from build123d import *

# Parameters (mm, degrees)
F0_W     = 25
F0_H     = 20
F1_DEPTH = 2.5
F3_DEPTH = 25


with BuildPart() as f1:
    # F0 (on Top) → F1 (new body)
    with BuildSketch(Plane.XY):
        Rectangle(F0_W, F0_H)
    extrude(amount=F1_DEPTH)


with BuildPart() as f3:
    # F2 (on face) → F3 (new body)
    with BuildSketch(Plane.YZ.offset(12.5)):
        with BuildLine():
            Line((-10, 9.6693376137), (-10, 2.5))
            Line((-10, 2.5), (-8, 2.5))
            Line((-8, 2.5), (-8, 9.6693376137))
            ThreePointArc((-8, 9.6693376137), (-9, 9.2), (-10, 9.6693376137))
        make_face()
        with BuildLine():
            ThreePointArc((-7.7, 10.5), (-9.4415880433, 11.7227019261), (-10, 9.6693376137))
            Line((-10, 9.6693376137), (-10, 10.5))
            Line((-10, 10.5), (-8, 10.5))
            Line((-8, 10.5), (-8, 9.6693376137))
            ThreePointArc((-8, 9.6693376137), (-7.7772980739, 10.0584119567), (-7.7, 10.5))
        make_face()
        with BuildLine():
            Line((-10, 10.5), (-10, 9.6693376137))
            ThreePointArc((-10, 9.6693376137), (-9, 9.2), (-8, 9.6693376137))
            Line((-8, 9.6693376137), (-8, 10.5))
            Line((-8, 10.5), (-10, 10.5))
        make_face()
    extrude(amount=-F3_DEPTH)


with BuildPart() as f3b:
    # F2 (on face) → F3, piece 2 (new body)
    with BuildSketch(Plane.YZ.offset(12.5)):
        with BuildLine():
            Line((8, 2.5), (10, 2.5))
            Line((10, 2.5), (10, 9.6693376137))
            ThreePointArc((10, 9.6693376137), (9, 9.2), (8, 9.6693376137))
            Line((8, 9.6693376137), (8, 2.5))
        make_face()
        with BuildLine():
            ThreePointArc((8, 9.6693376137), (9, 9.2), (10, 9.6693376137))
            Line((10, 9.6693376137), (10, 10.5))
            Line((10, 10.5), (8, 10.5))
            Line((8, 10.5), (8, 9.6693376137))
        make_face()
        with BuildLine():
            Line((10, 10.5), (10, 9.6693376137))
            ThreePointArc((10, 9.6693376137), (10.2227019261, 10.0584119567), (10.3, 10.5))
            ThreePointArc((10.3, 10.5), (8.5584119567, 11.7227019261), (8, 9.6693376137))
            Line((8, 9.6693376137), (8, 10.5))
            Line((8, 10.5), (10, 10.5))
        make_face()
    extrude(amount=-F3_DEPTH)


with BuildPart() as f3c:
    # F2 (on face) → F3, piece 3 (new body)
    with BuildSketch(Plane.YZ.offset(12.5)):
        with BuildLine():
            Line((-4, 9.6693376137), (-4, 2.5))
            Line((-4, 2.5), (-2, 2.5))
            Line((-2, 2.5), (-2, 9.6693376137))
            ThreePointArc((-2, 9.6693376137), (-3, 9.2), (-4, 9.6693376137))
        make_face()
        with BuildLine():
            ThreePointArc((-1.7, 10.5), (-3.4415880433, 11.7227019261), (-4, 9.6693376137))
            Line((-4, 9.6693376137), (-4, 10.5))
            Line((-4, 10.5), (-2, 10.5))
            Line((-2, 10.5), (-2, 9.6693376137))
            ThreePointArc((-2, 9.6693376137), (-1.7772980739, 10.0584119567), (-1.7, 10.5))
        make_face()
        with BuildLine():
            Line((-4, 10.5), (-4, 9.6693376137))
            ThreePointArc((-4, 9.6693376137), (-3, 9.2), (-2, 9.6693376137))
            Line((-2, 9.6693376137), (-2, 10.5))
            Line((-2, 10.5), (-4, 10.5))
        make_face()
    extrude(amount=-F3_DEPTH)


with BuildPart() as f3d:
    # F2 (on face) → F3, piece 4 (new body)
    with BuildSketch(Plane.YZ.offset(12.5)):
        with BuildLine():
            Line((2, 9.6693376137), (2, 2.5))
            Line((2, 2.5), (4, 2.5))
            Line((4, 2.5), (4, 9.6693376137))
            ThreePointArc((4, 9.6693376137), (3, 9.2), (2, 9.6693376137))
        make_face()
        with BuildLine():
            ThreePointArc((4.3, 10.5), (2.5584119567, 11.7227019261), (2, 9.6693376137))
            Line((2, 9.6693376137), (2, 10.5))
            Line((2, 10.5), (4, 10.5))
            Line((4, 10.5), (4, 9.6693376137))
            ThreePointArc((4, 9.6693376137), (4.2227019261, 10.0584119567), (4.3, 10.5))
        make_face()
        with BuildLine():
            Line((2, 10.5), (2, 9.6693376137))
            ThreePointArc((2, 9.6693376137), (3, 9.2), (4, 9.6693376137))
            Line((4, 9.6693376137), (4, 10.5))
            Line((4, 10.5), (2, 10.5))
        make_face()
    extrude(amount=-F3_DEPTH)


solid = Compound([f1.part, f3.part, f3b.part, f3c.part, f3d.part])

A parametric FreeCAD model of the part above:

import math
import FreeCAD as App
import Part
import Sketcher

V = App.Vector
Q = App.Units.Quantity


def add_polygon(sketch, points):
    """Adds a closed chain of lines whose ends are joined by coincident constraints."""
    first, n = sketch.GeometryCount, len(points)
    for a, b in zip(points, points[1:] + points[:1]):
        sketch.addGeometry(Part.LineSegment(App.Vector(*a, 0), App.Vector(*b, 0)), False)
    for i in range(n):
        sketch.addConstraint(Sketcher.Constraint("Coincident", first + i, 2, first + (i + 1) % n, 1))

doc = App.newDocument("Part")
params = doc.addObject("Spreadsheet::Sheet", "Params")
for row, (alias, value) in enumerate([
    ("sketch1_width", "25 mm"),
    ("sketch1_height", "20 mm"),
    ("pad1_length", "2.5 mm"),
    ("sketch2_radius", "1.3 mm"),
    ("sketch2_width", "2 mm"),
    ("pad2_length", "25 mm"),
    ("sketch3_radius", "1.3 mm"),
    ("sketch3_width", "2 mm"),
    ("pad3_length", "25 mm"),
    ("sketch4_radius", "1.3 mm"),
    ("sketch4_width", "2 mm"),
    ("pad4_length", "25 mm"),
    ("sketch5_radius", "1.3 mm"),
    ("sketch5_width", "2 mm"),
    ("pad5_length", "25 mm"),
], start=1):
    params.set(f"A{row}", alias)
    params.set(f"B{row}", "=" + value)
    params.setAlias(f"B{row}", alias)

body = doc.addObject("PartDesign::Body", "Body")

sketch1 = body.newObject("Sketcher::SketchObject", "Sketch")
sketch1.AttachmentSupport = (doc.getObject("XY_Plane"), [""])
sketch1.MapMode = "FlatFace"
add_polygon(sketch1, [(-12.5, 10), (-12.5, -10), (12.5, -10), (12.5, 10)])
sketch1.addConstraint(Sketcher.Constraint("Vertical", 0))
sketch1.addConstraint(Sketcher.Constraint("Horizontal", 1))
sketch1.addConstraint(Sketcher.Constraint("Vertical", 2))
sketch1.addConstraint(Sketcher.Constraint("Horizontal", 3))
sketch1.addConstraint(Sketcher.Constraint("Symmetric", 0, 2, 2, 2, -1, 1))
sketch1.addConstraint(Sketcher.Constraint("DistanceX", 1, 1, 1, 2, Q("25 mm")))
sketch1.addConstraint(Sketcher.Constraint("DistanceY", 0, 2, 0, 1, Q("20 mm")))
sketch1.setExpression("Constraints[9]", "Params.sketch1_width")
sketch1.setExpression("Constraints[10]", "Params.sketch1_height")
pad1 = body.newObject("PartDesign::Pad", "Pad")
pad1.Profile = sketch1
pad1.setExpression("Length", "Params.pad1_length")
body2 = doc.addObject("PartDesign::Body", "Body001")

sketch2 = body2.newObject("Sketcher::SketchObject", "Sketch001")
sketch2.AttachmentSupport = (doc.getObject("YZ_Plane001"), [""])
sketch2.MapMode = "FlatFace"
sketch2.AttachmentOffset = App.Placement(V(0, 0, 12.5), App.Rotation())
sketch2.addGeometry(Part.LineSegment(V(-10, 9.669338, 0), V(-10, 2.5, 0)), False)
sketch2.addGeometry(Part.LineSegment(V(-10, 2.5, 0), V(-8, 2.5, 0)), False)
sketch2.addGeometry(Part.LineSegment(V(-8, 2.5, 0), V(-8, 9.669338, 0)), False)
sketch2.addGeometry(Part.ArcOfCircle(Part.Circle(V(-9, 10.5, 0), V(0, 0, 1), 1.3), math.radians(-39.715137), math.radians(0)), False)
sketch2.addGeometry(Part.ArcOfCircle(Part.Circle(V(-9, 10.5, 0), V(0, 0, 1), 1.3), math.radians(0), math.radians(219.715137)), False)
sketch2.addConstraint(Sketcher.Constraint("Coincident", 0, 2, 1, 1))
sketch2.addConstraint(Sketcher.Constraint("Coincident", 1, 2, 2, 1))
sketch2.addConstraint(Sketcher.Constraint("Coincident", 2, 2, 3, 1))
sketch2.addConstraint(Sketcher.Constraint("Tangent", 3, 2, 4, 1))
sketch2.addConstraint(Sketcher.Constraint("Coincident", 4, 2, 0, 1))
sketch2.addConstraint(Sketcher.Constraint("Vertical", 0))
sketch2.addConstraint(Sketcher.Constraint("Horizontal", 1))
sketch2.addConstraint(Sketcher.Constraint("Vertical", 2))
sketch2.addConstraint(Sketcher.Constraint("Equal", 3, 4))
sketch2.addConstraint(Sketcher.Constraint("Horizontal", 4, 3, 3, 2))
sketch2.addConstraint(Sketcher.Constraint("Horizontal", 2, 2, 4, 2))
sketch2.addConstraint(Sketcher.Constraint("Radius", 3, Q("1.3 mm")))
sketch2.addConstraint(Sketcher.Constraint("DistanceX", 1, 1, 1, 2, Q("2 mm")))
sketch2.addConstraint(Sketcher.Constraint("DistanceX", 3, 3, -1, 1, Q("9 mm")))
sketch2.addConstraint(Sketcher.Constraint("DistanceY", 0, 2, 3, 3, Q("8 mm")))
sketch2.addConstraint(Sketcher.Constraint("DistanceY", -1, 1, 3, 3, Q("10.5 mm")))
sketch2.setExpression("Constraints[11]", "Params.sketch2_radius")
sketch2.setExpression("Constraints[12]", "Params.sketch2_width")
pad2 = body2.newObject("PartDesign::Pad", "Pad001")
pad2.Profile = sketch2
pad2.setExpression("Length", "Params.pad2_length")
pad2.Reversed = True
body3 = doc.addObject("PartDesign::Body", "Body002")

sketch3 = body3.newObject("Sketcher::SketchObject", "Sketch002")
sketch3.AttachmentSupport = (doc.getObject("YZ_Plane002"), [""])
sketch3.MapMode = "FlatFace"
sketch3.AttachmentOffset = App.Placement(V(0, 0, 12.5), App.Rotation())
sketch3.addGeometry(Part.LineSegment(V(8, 2.5, 0), V(10, 2.5, 0)), False)
sketch3.addGeometry(Part.LineSegment(V(10, 2.5, 0), V(10, 9.669338, 0)), False)
sketch3.addGeometry(Part.ArcOfCircle(Part.Circle(V(9, 10.5, 0), V(0, 0, 1), 1.3), math.radians(-39.715137), math.radians(0)), False)
sketch3.addGeometry(Part.ArcOfCircle(Part.Circle(V(9, 10.5, 0), V(0, 0, 1), 1.3), math.radians(0), math.radians(219.715137)), False)
sketch3.addGeometry(Part.LineSegment(V(8, 9.669338, 0), V(8, 2.5, 0)), False)
sketch3.addConstraint(Sketcher.Constraint("Coincident", 0, 2, 1, 1))
sketch3.addConstraint(Sketcher.Constraint("Coincident", 1, 2, 2, 1))
sketch3.addConstraint(Sketcher.Constraint("Tangent", 2, 2, 3, 1))
sketch3.addConstraint(Sketcher.Constraint("Coincident", 3, 2, 4, 1))
sketch3.addConstraint(Sketcher.Constraint("Coincident", 4, 2, 0, 1))
sketch3.addConstraint(Sketcher.Constraint("Horizontal", 0))
sketch3.addConstraint(Sketcher.Constraint("Vertical", 1))
sketch3.addConstraint(Sketcher.Constraint("Vertical", 4))
sketch3.addConstraint(Sketcher.Constraint("Equal", 2, 3))
sketch3.addConstraint(Sketcher.Constraint("Horizontal", 3, 3, 2, 2))
sketch3.addConstraint(Sketcher.Constraint("Horizontal", 1, 2, 3, 2))
sketch3.addConstraint(Sketcher.Constraint("Radius", 2, Q("1.3 mm")))
sketch3.addConstraint(Sketcher.Constraint("DistanceX", 0, 1, 0, 2, Q("2 mm")))
sketch3.addConstraint(Sketcher.Constraint("DistanceX", -1, 1, 2, 3, Q("9 mm")))
sketch3.addConstraint(Sketcher.Constraint("DistanceY", 0, 2, 2, 3, Q("8 mm")))
sketch3.addConstraint(Sketcher.Constraint("DistanceY", -1, 1, 2, 3, Q("10.5 mm")))
sketch3.setExpression("Constraints[11]", "Params.sketch3_radius")
sketch3.setExpression("Constraints[12]", "Params.sketch3_width")
pad3 = body3.newObject("PartDesign::Pad", "Pad002")
pad3.Profile = sketch3
pad3.setExpression("Length", "Params.pad3_length")
pad3.Reversed = True
body4 = doc.addObject("PartDesign::Body", "Body003")

sketch4 = body4.newObject("Sketcher::SketchObject", "Sketch003")
sketch4.AttachmentSupport = (doc.getObject("YZ_Plane003"), [""])
sketch4.MapMode = "FlatFace"
sketch4.AttachmentOffset = App.Placement(V(0, 0, 12.5), App.Rotation())
sketch4.addGeometry(Part.LineSegment(V(-4, 9.669338, 0), V(-4, 2.5, 0)), False)
sketch4.addGeometry(Part.LineSegment(V(-4, 2.5, 0), V(-2, 2.5, 0)), False)
sketch4.addGeometry(Part.LineSegment(V(-2, 2.5, 0), V(-2, 9.669338, 0)), False)
sketch4.addGeometry(Part.ArcOfCircle(Part.Circle(V(-3, 10.5, 0), V(0, 0, 1), 1.3), math.radians(-39.715137), math.radians(0)), False)
sketch4.addGeometry(Part.ArcOfCircle(Part.Circle(V(-3, 10.5, 0), V(0, 0, 1), 1.3), math.radians(0), math.radians(219.715137)), False)
sketch4.addConstraint(Sketcher.Constraint("Coincident", 0, 2, 1, 1))
sketch4.addConstraint(Sketcher.Constraint("Coincident", 1, 2, 2, 1))
sketch4.addConstraint(Sketcher.Constraint("Coincident", 2, 2, 3, 1))
sketch4.addConstraint(Sketcher.Constraint("Tangent", 3, 2, 4, 1))
sketch4.addConstraint(Sketcher.Constraint("Coincident", 4, 2, 0, 1))
sketch4.addConstraint(Sketcher.Constraint("Vertical", 0))
sketch4.addConstraint(Sketcher.Constraint("Horizontal", 1))
sketch4.addConstraint(Sketcher.Constraint("Vertical", 2))
sketch4.addConstraint(Sketcher.Constraint("Equal", 3, 4))
sketch4.addConstraint(Sketcher.Constraint("Horizontal", 4, 3, 3, 2))
sketch4.addConstraint(Sketcher.Constraint("Horizontal", 2, 2, 4, 2))
sketch4.addConstraint(Sketcher.Constraint("Radius", 3, Q("1.3 mm")))
sketch4.addConstraint(Sketcher.Constraint("DistanceX", 1, 1, 1, 2, Q("2 mm")))
sketch4.addConstraint(Sketcher.Constraint("DistanceX", 3, 3, -1, 1, Q("3 mm")))
sketch4.addConstraint(Sketcher.Constraint("DistanceY", 0, 2, 3, 3, Q("8 mm")))
sketch4.addConstraint(Sketcher.Constraint("DistanceY", -1, 1, 3, 3, Q("10.5 mm")))
sketch4.setExpression("Constraints[11]", "Params.sketch4_radius")
sketch4.setExpression("Constraints[12]", "Params.sketch4_width")
pad4 = body4.newObject("PartDesign::Pad", "Pad003")
pad4.Profile = sketch4
pad4.setExpression("Length", "Params.pad4_length")
pad4.Reversed = True
body5 = doc.addObject("PartDesign::Body", "Body004")

sketch5 = body5.newObject("Sketcher::SketchObject", "Sketch004")
sketch5.AttachmentSupport = (doc.getObject("YZ_Plane004"), [""])
sketch5.MapMode = "FlatFace"
sketch5.AttachmentOffset = App.Placement(V(0, 0, 12.5), App.Rotation())
sketch5.addGeometry(Part.LineSegment(V(2, 9.669338, 0), V(2, 2.5, 0)), False)
sketch5.addGeometry(Part.LineSegment(V(2, 2.5, 0), V(4, 2.5, 0)), False)
sketch5.addGeometry(Part.LineSegment(V(4, 2.5, 0), V(4, 9.669338, 0)), False)
sketch5.addGeometry(Part.ArcOfCircle(Part.Circle(V(3, 10.5, 0), V(0, 0, 1), 1.3), math.radians(-39.715137), math.radians(0)), False)
sketch5.addGeometry(Part.ArcOfCircle(Part.Circle(V(3, 10.5, 0), V(0, 0, 1), 1.3), math.radians(0), math.radians(219.715137)), False)
sketch5.addConstraint(Sketcher.Constraint("Coincident", 0, 2, 1, 1))
sketch5.addConstraint(Sketcher.Constraint("Coincident", 1, 2, 2, 1))
sketch5.addConstraint(Sketcher.Constraint("Coincident", 2, 2, 3, 1))
sketch5.addConstraint(Sketcher.Constraint("Tangent", 3, 2, 4, 1))
sketch5.addConstraint(Sketcher.Constraint("Coincident", 4, 2, 0, 1))
sketch5.addConstraint(Sketcher.Constraint("Vertical", 0))
sketch5.addConstraint(Sketcher.Constraint("Horizontal", 1))
sketch5.addConstraint(Sketcher.Constraint("Vertical", 2))
sketch5.addConstraint(Sketcher.Constraint("Equal", 3, 4))
sketch5.addConstraint(Sketcher.Constraint("Horizontal", 4, 3, 3, 2))
sketch5.addConstraint(Sketcher.Constraint("Horizontal", 2, 2, 4, 2))
sketch5.addConstraint(Sketcher.Constraint("Radius", 3, Q("1.3 mm")))
sketch5.addConstraint(Sketcher.Constraint("DistanceX", 1, 1, 1, 2, Q("2 mm")))
sketch5.addConstraint(Sketcher.Constraint("DistanceX", -1, 1, 3, 3, Q("3 mm")))
sketch5.addConstraint(Sketcher.Constraint("DistanceY", 0, 2, 3, 3, Q("8 mm")))
sketch5.addConstraint(Sketcher.Constraint("DistanceY", -1, 1, 3, 3, Q("10.5 mm")))
sketch5.setExpression("Constraints[11]", "Params.sketch5_radius")
sketch5.setExpression("Constraints[12]", "Params.sketch5_width")
pad5 = body5.newObject("PartDesign::Pad", "Pad004")
pad5.Profile = sketch5
pad5.setExpression("Length", "Params.pad5_length")
pad5.Reversed = True

doc.recompute()
